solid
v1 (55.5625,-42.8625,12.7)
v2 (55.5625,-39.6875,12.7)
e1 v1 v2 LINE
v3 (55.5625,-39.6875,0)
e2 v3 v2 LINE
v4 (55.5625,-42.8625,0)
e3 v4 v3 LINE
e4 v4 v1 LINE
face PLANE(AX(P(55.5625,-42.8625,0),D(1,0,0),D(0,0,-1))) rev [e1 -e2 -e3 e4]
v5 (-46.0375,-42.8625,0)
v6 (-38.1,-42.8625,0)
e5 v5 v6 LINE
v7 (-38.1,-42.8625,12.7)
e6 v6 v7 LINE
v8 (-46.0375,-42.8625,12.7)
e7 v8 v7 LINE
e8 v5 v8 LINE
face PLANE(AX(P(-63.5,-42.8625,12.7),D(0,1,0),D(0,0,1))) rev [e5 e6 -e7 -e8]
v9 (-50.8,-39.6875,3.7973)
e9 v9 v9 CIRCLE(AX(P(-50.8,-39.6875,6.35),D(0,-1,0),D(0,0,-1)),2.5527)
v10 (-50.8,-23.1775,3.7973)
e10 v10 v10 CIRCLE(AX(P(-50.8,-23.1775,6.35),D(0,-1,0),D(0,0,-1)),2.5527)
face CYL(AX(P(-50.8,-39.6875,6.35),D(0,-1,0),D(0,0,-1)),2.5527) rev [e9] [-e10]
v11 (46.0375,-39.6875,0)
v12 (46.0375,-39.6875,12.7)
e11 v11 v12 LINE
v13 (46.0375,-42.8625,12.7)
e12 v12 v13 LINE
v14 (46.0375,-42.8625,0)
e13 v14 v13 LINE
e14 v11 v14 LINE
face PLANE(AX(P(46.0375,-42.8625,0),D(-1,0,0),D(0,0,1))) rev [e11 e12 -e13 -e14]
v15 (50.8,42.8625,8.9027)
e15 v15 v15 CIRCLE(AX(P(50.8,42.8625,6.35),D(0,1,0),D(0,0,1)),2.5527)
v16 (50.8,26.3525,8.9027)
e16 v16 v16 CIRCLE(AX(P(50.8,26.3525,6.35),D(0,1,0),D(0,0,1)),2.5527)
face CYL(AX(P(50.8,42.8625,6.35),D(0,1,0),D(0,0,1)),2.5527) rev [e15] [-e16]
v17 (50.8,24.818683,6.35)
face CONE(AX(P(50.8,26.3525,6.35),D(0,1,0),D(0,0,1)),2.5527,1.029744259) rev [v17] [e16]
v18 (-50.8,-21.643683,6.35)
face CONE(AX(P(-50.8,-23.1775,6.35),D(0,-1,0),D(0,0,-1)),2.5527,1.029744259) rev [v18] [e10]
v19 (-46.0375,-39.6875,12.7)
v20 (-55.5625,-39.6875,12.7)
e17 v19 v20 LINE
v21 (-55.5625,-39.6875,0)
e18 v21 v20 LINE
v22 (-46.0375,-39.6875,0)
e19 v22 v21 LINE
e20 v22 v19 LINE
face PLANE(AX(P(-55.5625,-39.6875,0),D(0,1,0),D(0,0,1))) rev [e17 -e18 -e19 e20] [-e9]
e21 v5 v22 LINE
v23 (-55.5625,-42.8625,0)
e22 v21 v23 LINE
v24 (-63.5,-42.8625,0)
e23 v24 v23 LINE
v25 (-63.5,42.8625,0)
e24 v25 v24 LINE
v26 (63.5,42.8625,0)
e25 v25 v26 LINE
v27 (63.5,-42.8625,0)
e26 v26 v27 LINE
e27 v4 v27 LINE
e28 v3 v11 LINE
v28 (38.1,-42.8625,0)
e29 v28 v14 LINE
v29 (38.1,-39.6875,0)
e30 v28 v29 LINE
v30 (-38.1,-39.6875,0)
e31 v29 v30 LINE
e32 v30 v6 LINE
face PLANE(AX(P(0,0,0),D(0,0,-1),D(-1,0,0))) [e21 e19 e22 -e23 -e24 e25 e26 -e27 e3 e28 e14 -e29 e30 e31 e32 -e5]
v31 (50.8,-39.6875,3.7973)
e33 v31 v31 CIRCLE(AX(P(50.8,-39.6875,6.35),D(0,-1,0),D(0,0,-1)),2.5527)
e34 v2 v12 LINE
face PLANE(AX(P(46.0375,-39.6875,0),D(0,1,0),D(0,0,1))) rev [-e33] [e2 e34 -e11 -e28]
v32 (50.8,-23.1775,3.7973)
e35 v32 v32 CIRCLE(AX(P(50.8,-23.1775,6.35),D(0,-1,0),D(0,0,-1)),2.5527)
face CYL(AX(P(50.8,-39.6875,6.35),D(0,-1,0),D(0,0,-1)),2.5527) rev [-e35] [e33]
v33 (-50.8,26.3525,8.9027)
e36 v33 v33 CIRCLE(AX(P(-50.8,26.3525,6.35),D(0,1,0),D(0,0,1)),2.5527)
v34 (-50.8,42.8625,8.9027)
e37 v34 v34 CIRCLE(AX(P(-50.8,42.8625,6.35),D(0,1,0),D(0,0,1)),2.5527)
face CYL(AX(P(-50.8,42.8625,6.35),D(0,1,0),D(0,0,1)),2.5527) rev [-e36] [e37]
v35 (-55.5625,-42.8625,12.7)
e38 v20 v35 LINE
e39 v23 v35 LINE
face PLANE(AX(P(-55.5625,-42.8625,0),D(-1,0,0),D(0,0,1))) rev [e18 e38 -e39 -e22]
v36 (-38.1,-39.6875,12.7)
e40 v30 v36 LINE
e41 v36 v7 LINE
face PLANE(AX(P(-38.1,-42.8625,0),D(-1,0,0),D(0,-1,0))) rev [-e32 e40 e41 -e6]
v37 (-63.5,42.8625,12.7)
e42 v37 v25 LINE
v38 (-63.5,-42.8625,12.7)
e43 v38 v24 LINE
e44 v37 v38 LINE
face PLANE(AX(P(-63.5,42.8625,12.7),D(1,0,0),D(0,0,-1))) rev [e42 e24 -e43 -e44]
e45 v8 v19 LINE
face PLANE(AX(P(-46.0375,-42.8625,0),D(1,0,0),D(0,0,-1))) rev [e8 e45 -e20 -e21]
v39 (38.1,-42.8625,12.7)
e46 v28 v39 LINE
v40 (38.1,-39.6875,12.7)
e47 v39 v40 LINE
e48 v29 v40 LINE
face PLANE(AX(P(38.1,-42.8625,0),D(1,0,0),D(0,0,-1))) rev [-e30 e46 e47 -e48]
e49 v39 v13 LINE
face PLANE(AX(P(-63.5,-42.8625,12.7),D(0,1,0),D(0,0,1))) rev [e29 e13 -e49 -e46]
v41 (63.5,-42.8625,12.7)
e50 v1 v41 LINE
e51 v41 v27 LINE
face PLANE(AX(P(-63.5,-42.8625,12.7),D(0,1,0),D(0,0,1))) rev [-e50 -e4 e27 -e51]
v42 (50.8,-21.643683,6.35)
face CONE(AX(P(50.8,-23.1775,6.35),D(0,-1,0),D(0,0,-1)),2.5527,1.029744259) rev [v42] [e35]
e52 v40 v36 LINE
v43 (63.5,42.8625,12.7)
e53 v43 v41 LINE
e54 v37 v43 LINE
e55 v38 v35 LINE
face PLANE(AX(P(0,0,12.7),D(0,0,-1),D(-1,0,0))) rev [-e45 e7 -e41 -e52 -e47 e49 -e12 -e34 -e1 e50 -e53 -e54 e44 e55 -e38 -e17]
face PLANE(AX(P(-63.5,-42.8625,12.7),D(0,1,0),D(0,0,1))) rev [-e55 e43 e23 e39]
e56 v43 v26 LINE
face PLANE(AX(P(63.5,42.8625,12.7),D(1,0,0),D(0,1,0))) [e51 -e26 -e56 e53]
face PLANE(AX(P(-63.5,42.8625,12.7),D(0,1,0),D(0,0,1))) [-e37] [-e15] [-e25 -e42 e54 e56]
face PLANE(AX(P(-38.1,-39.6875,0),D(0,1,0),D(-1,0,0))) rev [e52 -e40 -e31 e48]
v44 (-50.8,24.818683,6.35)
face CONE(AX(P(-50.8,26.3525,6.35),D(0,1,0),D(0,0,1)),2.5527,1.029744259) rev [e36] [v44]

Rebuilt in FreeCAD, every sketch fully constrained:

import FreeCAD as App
import Part
import Sketcher
Q = App.Units.Quantity

doc = App.newDocument("Part")
body = doc.addObject("PartDesign::Body", "Body")

# Sketch on XY plane
sketch1 = body.newObject("Sketcher::SketchObject", "Sketch")
sketch1.AttachmentSupport = (doc.getObject("XY_Plane"), [""])
sketch1.MapMode = "FlatFace"
sketch1.addGeometry([
    Part.LineSegment(App.Vector(-63.5, 42.8625, 0), App.Vector(-63.5, -42.8625, 0)),
    Part.LineSegment(App.Vector(-63.5, -42.8625, 0), App.Vector(63.5, -42.8625, 0)),
    Part.LineSegment(App.Vector(63.5, -42.8625, 0), App.Vector(63.5, 42.8625, 0)),
    Part.LineSegment(App.Vector(63.5, 42.8625, 0), App.Vector(-63.5, 42.8625, 0)),
], False)
sketch1.addConstraint([
    Sketcher.Constraint("Coincident", 0, 2, 1, 1),
    Sketcher.Constraint("Coincident", 1, 2, 2, 1),
    Sketcher.Constraint("Coincident", 2, 2, 3, 1),
    Sketcher.Constraint("Coincident", 3, 2, 0, 1),
    Sketcher.Constraint("Vertical", 0),
    Sketcher.Constraint("Horizontal", 1),
    Sketcher.Constraint("Vertical", 2),
    Sketcher.Constraint("Horizontal", 3),
    Sketcher.Constraint("Symmetric", 0, 2, 2, 2, -1, 1),
    Sketcher.Constraint("DistanceX", 1, 1, 1, 2, Q("5 in")),
    Sketcher.Constraint("DistanceY", 0, 2, 0, 1, Q("3.375 in")),
])
pad1 = body.newObject("PartDesign::Pad", "Pad")
pad1.Profile = sketch1
pad1.Length = Q("0.5 in")

# Sketch on XY plane
sketch2 = body.newObject("Sketcher::SketchObject", "Sketch001")
sketch2.AttachmentSupport = (doc.getObject("XY_Plane"), [""])
sketch2.MapMode = "FlatFace"
sketch2.AttachmentOffset = App.Placement(App.Vector(0, 0, 0.5 * 25.4), App.Rotation())
sketch2.addGeometry([
    Part.LineSegment(App.Vector(-38.1, -39.6875, 0), App.Vector(-38.1, -42.8625, 0)),
    Part.LineSegment(App.Vector(-38.1, -42.8625, 0), App.Vector(38.1, -42.8625, 0)),
    Part.LineSegment(App.Vector(38.1, -42.8625, 0), App.Vector(38.1, -39.6875, 0)),
    Part.LineSegment(App.Vector(38.1, -39.6875, 0), App.Vector(-38.1, -39.6875, 0)),
], False)
sketch2.addConstraint([
    Sketcher.Constraint("Coincident", 0, 2, 1, 1),
    Sketcher.Constraint("Coincident", 1, 2, 2, 1),
    Sketcher.Constraint("Coincident", 2, 2, 3, 1),
    Sketcher.Constraint("Coincident", 3, 2, 0, 1),
    Sketcher.Constraint("Vertical", 0),
    Sketcher.Constraint("Horizontal", 1),
    Sketcher.Constraint("Vertical", 2),
    Sketcher.Constraint("Horizontal", 3),
    Sketcher.Constraint("DistanceX", 1, 1, 1, 2, Q("3 in")),
    Sketcher.Constraint("DistanceX", 0, 2, -1, 1, Q("1.5 in")),
    Sketcher.Constraint("DistanceY", 0, 2, 0, 1, Q("0.125 in")),
    Sketcher.Constraint("DistanceY", 0, 2, -1, 1, Q("1.6875 in")),
])
pocket1 = body.newObject("PartDesign::Pocket", "Pocket")
pocket1.Profile = sketch2
pocket1.Type = "ThroughAll"

# Sketch on XY plane
sketch3 = body.newObject("Sketcher::SketchObject", "Sketch002")
sketch3.AttachmentSupport = (doc.getObject("XY_Plane"), [""])
sketch3.MapMode = "FlatFace"
sketch3.AttachmentOffset = App.Placement(App.Vector(0, 0, 0.5 * 25.4), App.Rotation())
sketch3.addGeometry([
    Part.LineSegment(App.Vector(46.0375, -39.6875, 0), App.Vector(46.0375, -42.8625, 0)),  # 0
    Part.LineSegment(App.Vector(46.0375, -42.8625, 0), App.Vector(55.5625, -42.8625, 0)),  # 1
    Part.LineSegment(App.Vector(55.5625, -42.8625, 0), App.Vector(55.5625, -39.6875, 0)),  # 2
    Part.LineSegment(App.Vector(55.5625, -39.6875, 0), App.Vector(46.0375, -39.6875, 0)),  # 3
    Part.LineSegment(App.Vector(-55.5625, -39.6875, 0), App.Vector(-55.5625, -42.8625, 0)),  # 4
    Part.LineSegment(App.Vector(-55.5625, -42.8625, 0), App.Vector(-46.0375, -42.8625, 0)),  # 5
    Part.LineSegment(App.Vector(-46.0375, -42.8625, 0), App.Vector(-46.0375, -39.6875, 0)),  # 6
    Part.LineSegment(App.Vector(-46.0375, -39.6875, 0), App.Vector(-55.5625, -39.6875, 0)),  # 7
], False)
sketch3.addConstraint([
    Sketcher.Constraint("Coincident", 0, 2, 1, 1),
    Sketcher.Constraint("Coincident", 1, 2, 2, 1),
    Sketcher.Constraint("Coincident", 2, 2, 3, 1),
    Sketcher.Constraint("Coincident", 3, 2, 0, 1),
    Sketcher.Constraint("Coincident", 4, 2, 5, 1),
    Sketcher.Constraint("Coincident", 5, 2, 6, 1),
    Sketcher.Constraint("Coincident", 6, 2, 7, 1),
    Sketcher.Constraint("Coincident", 7, 2, 4, 1),
    Sketcher.Constraint("Vertical", 0),
    Sketcher.Constraint("Horizontal", 1),
    Sketcher.Constraint("Vertical", 2),
    Sketcher.Constraint("Horizontal", 3),
    Sketcher.Constraint("Vertical", 4),
    Sketcher.Constraint("Horizontal", 5),
    Sketcher.Constraint("Vertical", 6),
    Sketcher.Constraint("Horizontal", 7),
    Sketcher.Constraint("Symmetric", 1, 2, 4, 2, -2),
    Sketcher.Constraint("Symmetric", 3, 2, 6, 2, -2),
    Sketcher.Constraint("DistanceX", 4, 2, 0, 2, Q("4 in")),
    Sketcher.Constraint("DistanceX", 1, 1, 1, 2, Q("0.375 in")),
    Sketcher.Constraint("DistanceY", 0, 2, 0, 1, Q("0.125 in")),
    Sketcher.Constraint("DistanceY", 0, 2, -1, 1, Q("1.6875 in")),
])
pocket2 = body.newObject("PartDesign::Pocket", "Pocket001")
pocket2.Profile = sketch3
pocket2.Type = "ThroughAll"

# Sketch on XZ plane
sketch4 = body.newObject("Sketcher::SketchObject", "Sketch003")
sketch4.AttachmentSupport = (doc.getObject("XZ_Plane"), [""])
sketch4.MapMode = "FlatFace"
sketch4.AttachmentOffset = App.Placement(App.Vector(0, 0, 1.5625 * 25.4), App.Rotation())
sketch4.addGeometry([
    Part.Circle(App.Vector(-50.8, 6.35, 0), App.Vector(0, 0, 1), 2.5527),
    Part.Circle(App.Vector(50.8, 6.35, 0), App.Vector(0, 0, 1), 2.5527),
], False)
sketch4.addConstraint([
    Sketcher.Constraint("Equal", 0, 1),
    Sketcher.Constraint("Symmetric", 0, 3, 1, 3, -2),
    Sketcher.Constraint("Diameter", 0, Q("0.201 in")),
    Sketcher.Constraint("DistanceX", 0, 3, -1, 1, Q("2 in")),
    Sketcher.Constraint("DistanceY", -1, 1, 0, 3, Q("0.25 in")),
])
doc.recompute()
hole = body.newObject("PartDesign::Hole", "Hole")
hole.Profile = sketch4
hole.ThreadType = "None"
hole.Diameter = Q("0.201 in")
hole.DepthType = "Dimension"
hole.Depth = Q("0.65 in")
hole.DrillPoint = "Angled"
hole.DrillPointAngle = 118

# Sketch on XZ plane
sketch5 = body.newObject("Sketcher::SketchObject", "Sketch004")
sketch5.AttachmentSupport = (doc.getObject("XZ_Plane"), [""])
sketch5.MapMode = "FlatFace"
sketch5.AttachmentOffset = App.Placement(App.Vector(0, 0, -1.6875 * 25.4), App.Rotation())
sketch5.addGeometry([
    Part.Circle(App.Vector(-50.8, 6.35, 0), App.Vector(0, 0, 1), 2.5527),
    Part.Circle(App.Vector(50.8, 6.35, 0), App.Vector(0, 0, 1), 2.5527),
], False)
sketch5.addConstraint([
    Sketcher.Constraint("Equal", 0, 1),
    Sketcher.Constraint("Symmetric", 0, 3, 1, 3, -2),
    Sketcher.Constraint("Diameter", 0, Q("0.201 in")),
    Sketcher.Constraint("DistanceX", 0, 3, -1, 1, Q("2 in")),
    Sketcher.Constraint("DistanceY", -1, 1, 0, 3, Q("0.25 in")),
])
doc.recompute()
hole2 = body.newObject("PartDesign::Hole", "Hole001")
hole2.Profile = sketch5
hole2.ThreadType = "None"
hole2.Diameter = Q("0.201 in")
hole2.DepthType = "Dimension"
hole2.Depth = Q("0.65 in")
hole2.DrillPoint = "Angled"
hole2.DrillPointAngle = 118
hole2.Reversed = True

doc.recompute()
